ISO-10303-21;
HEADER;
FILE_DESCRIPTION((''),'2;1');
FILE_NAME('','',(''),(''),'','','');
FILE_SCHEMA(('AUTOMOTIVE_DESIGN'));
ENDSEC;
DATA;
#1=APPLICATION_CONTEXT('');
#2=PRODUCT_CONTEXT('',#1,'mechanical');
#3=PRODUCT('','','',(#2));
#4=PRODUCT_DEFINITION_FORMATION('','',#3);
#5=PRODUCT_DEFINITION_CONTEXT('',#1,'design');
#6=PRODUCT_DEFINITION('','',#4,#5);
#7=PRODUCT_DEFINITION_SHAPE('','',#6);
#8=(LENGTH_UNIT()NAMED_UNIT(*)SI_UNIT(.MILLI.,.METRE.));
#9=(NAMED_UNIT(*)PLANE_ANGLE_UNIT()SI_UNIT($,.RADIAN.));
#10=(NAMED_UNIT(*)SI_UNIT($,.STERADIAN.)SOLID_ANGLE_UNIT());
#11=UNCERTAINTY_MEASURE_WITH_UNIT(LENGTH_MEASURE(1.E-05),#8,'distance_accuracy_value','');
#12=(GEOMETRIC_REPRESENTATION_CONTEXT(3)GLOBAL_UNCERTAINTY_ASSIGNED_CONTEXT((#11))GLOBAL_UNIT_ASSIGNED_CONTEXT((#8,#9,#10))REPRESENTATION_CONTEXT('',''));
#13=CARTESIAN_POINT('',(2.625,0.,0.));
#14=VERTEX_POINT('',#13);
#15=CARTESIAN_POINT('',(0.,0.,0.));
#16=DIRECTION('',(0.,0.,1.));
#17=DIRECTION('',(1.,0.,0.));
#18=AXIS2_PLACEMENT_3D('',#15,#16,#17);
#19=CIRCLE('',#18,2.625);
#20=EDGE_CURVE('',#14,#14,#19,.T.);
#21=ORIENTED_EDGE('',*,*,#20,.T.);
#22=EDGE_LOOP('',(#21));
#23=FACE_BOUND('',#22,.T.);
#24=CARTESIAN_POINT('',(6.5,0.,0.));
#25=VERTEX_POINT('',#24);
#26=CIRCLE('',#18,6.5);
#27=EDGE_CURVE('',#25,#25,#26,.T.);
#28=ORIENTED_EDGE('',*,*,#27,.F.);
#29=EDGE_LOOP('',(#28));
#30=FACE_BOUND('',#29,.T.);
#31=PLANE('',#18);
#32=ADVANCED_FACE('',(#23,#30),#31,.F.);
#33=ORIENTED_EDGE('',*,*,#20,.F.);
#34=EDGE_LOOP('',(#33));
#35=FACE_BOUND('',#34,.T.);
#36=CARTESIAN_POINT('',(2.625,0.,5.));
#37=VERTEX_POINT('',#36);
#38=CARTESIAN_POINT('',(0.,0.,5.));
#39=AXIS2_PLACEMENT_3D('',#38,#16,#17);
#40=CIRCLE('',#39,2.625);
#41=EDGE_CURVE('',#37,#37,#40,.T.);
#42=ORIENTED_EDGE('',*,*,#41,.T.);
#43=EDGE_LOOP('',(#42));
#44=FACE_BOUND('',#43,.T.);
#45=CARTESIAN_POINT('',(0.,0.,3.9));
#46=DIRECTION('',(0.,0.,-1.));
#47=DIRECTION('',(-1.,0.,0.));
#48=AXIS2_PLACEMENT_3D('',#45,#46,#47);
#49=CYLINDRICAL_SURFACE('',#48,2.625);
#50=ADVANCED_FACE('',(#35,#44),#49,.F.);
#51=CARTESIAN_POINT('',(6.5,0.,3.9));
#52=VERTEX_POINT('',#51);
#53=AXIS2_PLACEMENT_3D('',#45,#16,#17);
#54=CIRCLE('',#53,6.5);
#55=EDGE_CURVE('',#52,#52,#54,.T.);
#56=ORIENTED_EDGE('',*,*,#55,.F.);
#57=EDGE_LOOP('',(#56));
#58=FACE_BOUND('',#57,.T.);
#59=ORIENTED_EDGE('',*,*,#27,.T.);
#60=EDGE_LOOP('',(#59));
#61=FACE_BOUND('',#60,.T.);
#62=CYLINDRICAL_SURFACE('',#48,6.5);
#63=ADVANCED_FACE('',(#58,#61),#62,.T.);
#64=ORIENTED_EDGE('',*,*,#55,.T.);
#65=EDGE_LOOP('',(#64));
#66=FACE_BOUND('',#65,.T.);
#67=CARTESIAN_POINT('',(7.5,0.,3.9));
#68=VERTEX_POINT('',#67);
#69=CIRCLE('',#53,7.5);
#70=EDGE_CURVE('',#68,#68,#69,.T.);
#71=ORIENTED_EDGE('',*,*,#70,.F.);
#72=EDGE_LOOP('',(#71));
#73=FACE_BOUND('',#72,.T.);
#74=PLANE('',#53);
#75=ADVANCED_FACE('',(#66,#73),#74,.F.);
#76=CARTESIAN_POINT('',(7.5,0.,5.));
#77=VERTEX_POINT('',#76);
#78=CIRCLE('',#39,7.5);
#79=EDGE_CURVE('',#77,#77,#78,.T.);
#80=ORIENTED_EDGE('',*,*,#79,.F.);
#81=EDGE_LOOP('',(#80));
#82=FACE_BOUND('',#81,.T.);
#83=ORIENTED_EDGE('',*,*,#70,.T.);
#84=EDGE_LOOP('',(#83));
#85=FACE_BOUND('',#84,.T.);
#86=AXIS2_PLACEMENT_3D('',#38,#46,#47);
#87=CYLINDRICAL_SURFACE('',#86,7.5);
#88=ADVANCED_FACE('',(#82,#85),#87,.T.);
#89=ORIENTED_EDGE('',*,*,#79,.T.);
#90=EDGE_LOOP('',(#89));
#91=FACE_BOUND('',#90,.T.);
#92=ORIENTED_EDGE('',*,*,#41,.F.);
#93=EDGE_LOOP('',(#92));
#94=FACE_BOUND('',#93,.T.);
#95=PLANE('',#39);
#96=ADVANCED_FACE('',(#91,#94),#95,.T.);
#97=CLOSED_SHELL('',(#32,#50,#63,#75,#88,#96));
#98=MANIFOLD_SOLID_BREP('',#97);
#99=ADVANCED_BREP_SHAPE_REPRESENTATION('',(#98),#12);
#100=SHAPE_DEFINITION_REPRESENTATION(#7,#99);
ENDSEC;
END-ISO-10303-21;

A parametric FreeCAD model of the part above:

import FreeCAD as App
import Part
import Sketcher

doc = App.newDocument("Part")
params = doc.addObject("Spreadsheet::Sheet", "Params")
for row, (alias, value) in enumerate([
    ("sketch1_diameter", "13 mm"),
    ("sketch1_diameter2", "5.25 mm"),
    ("pad1_length", "3.9 mm"),
    ("sketch2_diameter", "15 mm"),
    ("sketch2_diameter2", "5.25 mm"),
    ("pad2_length", "1.1 mm"),
], start=1):
    params.set(f"A{row}", alias)
    params.set(f"B{row}", "=" + value)
    params.setAlias(f"B{row}", alias)

body = doc.addObject("PartDesign::Body", "Body")

sketch1 = body.newObject("Sketcher::SketchObject", "Sketch")
sketch1.AttachmentSupport = (doc.getObject("XY_Plane"), [""])
sketch1.MapMode = "FlatFace"
sketch1.addGeometry(Part.Circle(App.Vector(0, 0, 0), App.Vector(0, 0, 1), 6.5), False)
sketch1.addGeometry(Part.Circle(App.Vector(0, 0, 0), App.Vector(0, 0, 1), 2.625), False)
sketch1.addConstraint(Sketcher.Constraint("Coincident", 0, 3, -1, 1))
sketch1.addConstraint(Sketcher.Constraint("Coincident", 1, 3, -1, 1))
sketch1.addConstraint(Sketcher.Constraint("Diameter", 0, 13.0))
sketch1.addConstraint(Sketcher.Constraint("Diameter", 1, 5.25))
sketch1.setExpression("Constraints[2]", "Params.sketch1_diameter")
sketch1.setExpression("Constraints[3]", "Params.sketch1_diameter2")
pad1 = body.newObject("PartDesign::Pad", "Pad")
pad1.Profile = sketch1
pad1.setExpression("Length", "Params.pad1_length")

sketch2 = body.newObject("Sketcher::SketchObject", "Sketch001")
sketch2.AttachmentSupport = (doc.getObject("XY_Plane"), [""])
sketch2.MapMode = "FlatFace"
sketch2.AttachmentOffset = App.Placement(App.Vector(0, 0, 3.9), App.Rotation())
sketch2.addGeometry(Part.Circle(App.Vector(0, 0, 0), App.Vector(0, 0, 1), 7.5), False)
sketch2.addGeometry(Part.Circle(App.Vector(0, 0, 0), App.Vector(0, 0, 1), 2.625), False)
sketch2.addConstraint(Sketcher.Constraint("Coincident", 0, 3, -1, 1))
sketch2.addConstraint(Sketcher.Constraint("Coincident", 1, 3, -1, 1))
sketch2.addConstraint(Sketcher.Constraint("Diameter", 0, 15.0))
sketch2.addConstraint(Sketcher.Constraint("Diameter", 1, 5.25))
sketch2.setExpression("Constraints[2]", "Params.sketch2_diameter")
sketch2.setExpression("Constraints[3]", "Params.sketch2_diameter2")
pad2 = body.newObject("PartDesign::Pad", "Pad001")
pad2.Profile = sketch2
pad2.setExpression("Length", "Params.pad2_length")

doc.recompute()
